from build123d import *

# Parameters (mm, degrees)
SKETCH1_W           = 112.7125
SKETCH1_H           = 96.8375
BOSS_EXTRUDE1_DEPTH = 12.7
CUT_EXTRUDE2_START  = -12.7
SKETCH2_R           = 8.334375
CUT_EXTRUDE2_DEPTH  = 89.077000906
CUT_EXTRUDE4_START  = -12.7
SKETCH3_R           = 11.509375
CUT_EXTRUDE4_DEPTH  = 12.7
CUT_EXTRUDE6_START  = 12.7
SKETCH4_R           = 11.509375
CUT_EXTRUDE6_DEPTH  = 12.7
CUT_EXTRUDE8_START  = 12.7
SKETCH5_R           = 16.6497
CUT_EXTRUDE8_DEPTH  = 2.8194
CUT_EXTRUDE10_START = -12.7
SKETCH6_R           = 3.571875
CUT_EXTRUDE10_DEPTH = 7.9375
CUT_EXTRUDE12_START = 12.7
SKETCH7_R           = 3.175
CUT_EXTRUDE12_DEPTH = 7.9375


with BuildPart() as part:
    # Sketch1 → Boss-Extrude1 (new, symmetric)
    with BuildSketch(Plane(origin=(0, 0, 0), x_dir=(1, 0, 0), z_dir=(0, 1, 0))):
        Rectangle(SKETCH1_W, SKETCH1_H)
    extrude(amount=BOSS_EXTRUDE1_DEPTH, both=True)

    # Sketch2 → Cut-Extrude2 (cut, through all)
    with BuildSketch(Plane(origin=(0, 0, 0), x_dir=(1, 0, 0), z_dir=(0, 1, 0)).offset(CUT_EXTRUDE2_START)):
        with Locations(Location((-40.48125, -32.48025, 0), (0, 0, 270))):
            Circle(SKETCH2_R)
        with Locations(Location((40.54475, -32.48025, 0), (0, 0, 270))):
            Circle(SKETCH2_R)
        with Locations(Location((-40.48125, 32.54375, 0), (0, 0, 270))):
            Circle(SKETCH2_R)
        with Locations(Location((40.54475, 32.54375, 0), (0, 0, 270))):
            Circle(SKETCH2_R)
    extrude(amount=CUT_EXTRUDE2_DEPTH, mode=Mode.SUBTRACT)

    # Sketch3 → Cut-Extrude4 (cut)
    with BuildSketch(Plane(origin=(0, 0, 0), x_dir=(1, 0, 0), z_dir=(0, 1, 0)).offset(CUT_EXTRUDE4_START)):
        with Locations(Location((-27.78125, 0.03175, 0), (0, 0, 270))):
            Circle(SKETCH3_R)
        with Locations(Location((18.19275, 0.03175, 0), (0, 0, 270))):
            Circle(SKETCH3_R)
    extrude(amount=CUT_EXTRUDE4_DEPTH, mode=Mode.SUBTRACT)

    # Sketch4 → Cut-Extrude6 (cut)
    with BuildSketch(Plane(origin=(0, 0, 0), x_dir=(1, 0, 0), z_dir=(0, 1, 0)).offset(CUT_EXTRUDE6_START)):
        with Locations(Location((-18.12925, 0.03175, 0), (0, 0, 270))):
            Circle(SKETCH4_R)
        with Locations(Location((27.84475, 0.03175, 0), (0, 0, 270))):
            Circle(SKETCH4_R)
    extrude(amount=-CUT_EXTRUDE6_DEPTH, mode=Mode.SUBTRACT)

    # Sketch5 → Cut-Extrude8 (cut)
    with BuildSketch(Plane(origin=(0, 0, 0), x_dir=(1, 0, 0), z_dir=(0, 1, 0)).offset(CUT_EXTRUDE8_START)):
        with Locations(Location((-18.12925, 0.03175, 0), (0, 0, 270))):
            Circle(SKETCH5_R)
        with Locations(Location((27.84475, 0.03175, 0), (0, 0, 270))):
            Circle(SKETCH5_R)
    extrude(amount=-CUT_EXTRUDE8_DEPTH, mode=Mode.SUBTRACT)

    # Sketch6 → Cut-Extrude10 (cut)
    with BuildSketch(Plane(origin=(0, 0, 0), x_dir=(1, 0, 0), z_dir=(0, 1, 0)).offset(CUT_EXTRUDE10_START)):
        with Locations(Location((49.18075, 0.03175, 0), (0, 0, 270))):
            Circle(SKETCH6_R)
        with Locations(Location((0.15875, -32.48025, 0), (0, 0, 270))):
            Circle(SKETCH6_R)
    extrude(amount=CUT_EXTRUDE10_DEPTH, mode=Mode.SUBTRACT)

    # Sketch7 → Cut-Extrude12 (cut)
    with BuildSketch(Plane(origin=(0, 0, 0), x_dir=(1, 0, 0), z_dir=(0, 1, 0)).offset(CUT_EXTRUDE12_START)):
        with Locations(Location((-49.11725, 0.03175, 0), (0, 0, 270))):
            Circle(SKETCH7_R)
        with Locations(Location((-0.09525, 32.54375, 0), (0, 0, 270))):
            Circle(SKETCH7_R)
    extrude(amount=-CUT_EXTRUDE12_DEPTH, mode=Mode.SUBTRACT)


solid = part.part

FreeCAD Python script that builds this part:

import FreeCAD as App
import Part
import Sketcher
from FreeCAD import Vector
Q = App.Units.Quantity


def add_polygon(sketch, points):
    """Adds a closed chain of lines whose ends are joined by coincident constraints."""
    first, n = sketch.GeometryCount, len(points)
    for a, b in zip(points, points[1:] + points[:1]):
        sketch.addGeometry(Part.LineSegment(App.Vector(*a, 0), App.Vector(*b, 0)), False)
    for i in range(n):
        sketch.addConstraint(Sketcher.Constraint("Coincident", first + i, 2, first + (i + 1) % n, 1))

doc = App.newDocument("Part")
body = doc.addObject("PartDesign::Body", "Body")

# Sketch on XZ plane
sketch1 = body.newObject("Sketcher::SketchObject", "Sketch")
sketch1.AttachmentSupport = (doc.getObject("XZ_Plane"), [""])
sketch1.MapMode = "FlatFace"
add_polygon(sketch1, [(-56, -48), (-56, 48), (56, 48), (56, -48)])  # lines 0-3
sketch1.addConstraint([
    Sketcher.Constraint("Vertical", 0),
    Sketcher.Constraint("Horizontal", 1),
    Sketcher.Constraint("Vertical", 2),
    Sketcher.Constraint("Horizontal", 3),
    Sketcher.Constraint("Symmetric", 0, 2, 2, 2, -1, 1),
    Sketcher.Constraint("DistanceX", 1, 1, 1, 2, Q("4.4375 in")),
    Sketcher.Constraint("DistanceY", 0, 1, 0, 2, Q("3.8125 in")),
])
pad1 = body.newObject("PartDesign::Pad", "Pad")
pad1.Profile = sketch1
pad1.Length = Q("1 in")
pad1.Midplane = True

# Sketch on XZ plane
sketch2 = body.newObject("Sketcher::SketchObject", "Sketch001")
sketch2.AttachmentSupport = (doc.getObject("XZ_Plane"), [""])
sketch2.MapMode = "FlatFace"
sketch2.AttachmentOffset = App.Placement(Vector(0, 0, 0.5 * 25.4), App.Rotation())
sketch2.addGeometry([
    Part.Circle(Vector(-40, 32, 0), Vector(0, 0, 1), 8),
    Part.Circle(Vector(41, 32, 0), Vector(0, 0, 1), 8),
    Part.Circle(Vector(-40, -33, 0), Vector(0, 0, 1), 8),
    Part.Circle(Vector(41, -33, 0), Vector(0, 0, 1), 8),
], False)
sketch2.addConstraint([
    Sketcher.Constraint("Equal", 0, 1),
    Sketcher.Constraint("Equal", 1, 2),
    Sketcher.Constraint("Equal", 2, 3),
    Sketcher.Constraint("Horizontal", 0, 3, 1, 3),
    Sketcher.Constraint("Horizontal", 2, 3, 3, 3),
    Sketcher.Constraint("Vertical", 0, 3, 2, 3),
    Sketcher.Constraint("Vertical", 1, 3, 3, 3),
    Sketcher.Constraint("Diameter", 0, Q("0.65625 in")),
    Sketcher.Constraint("DistanceX", 0, 3, 1, 3, Q("3.19 in")),
    Sketcher.Constraint("DistanceY", 2, 3, 0, 3, Q("2.56 in")),
    Sketcher.Constraint("DistanceX", 0, 3, -1, 1, Q("1.59375 in")),
    Sketcher.Constraint("DistanceY", 2, 3, -1, 1, Q("1.28125 in")),
])
pocket1 = body.newObject("PartDesign::Pocket", "Pocket")
pocket1.Profile = sketch2
pocket1.Type = "ThroughAll"

# Sketch on XZ plane
sketch3 = body.newObject("Sketcher::SketchObject", "Sketch002")
sketch3.AttachmentSupport = (doc.getObject("XZ_Plane"), [""])
sketch3.MapMode = "FlatFace"
sketch3.AttachmentOffset = App.Placement(Vector(0, 0, 0.5 * 25.4), App.Rotation())
sketch3.addGeometry([
    Part.Circle(Vector(-28, 0, 0), Vector(0, 0, 1), 12),
    Part.Circle(Vector(18, 0, 0), Vector(0, 0, 1), 12),
], False)
sketch3.addConstraint([
    Sketcher.Constraint("Equal", 0, 1),
    Sketcher.Constraint("Horizontal", 0, 3, 1, 3),
    Sketcher.Constraint("Diameter", 0, Q("0.90625 in")),
    Sketcher.Constraint("DistanceX", 0, 3, 1, 3, Q("1.81 in")),
    Sketcher.Constraint("DistanceX", 0, 3, -1, 1, Q("1.09375 in")),
    Sketcher.Constraint("DistanceY", 0, 3, -1, 1, 0.03175),
])
pocket2 = body.newObject("PartDesign::Pocket", "Pocket001")
pocket2.Profile = sketch3
pocket2.Length = Q("0.5 in")

# Sketch on XZ plane
sketch4 = body.newObject("Sketcher::SketchObject", "Sketch003")
sketch4.AttachmentSupport = (doc.getObject("XZ_Plane"), [""])
sketch4.MapMode = "FlatFace"
sketch4.AttachmentOffset = App.Placement(Vector(0, 0, -0.5 * 25.4), App.Rotation())
sketch4.addGeometry([
    Part.Circle(Vector(-18, 0, 0), Vector(0, 0, 1), 12),
    Part.Circle(Vector(28, 0, 0), Vector(0, 0, 1), 12),
], False)
sketch4.addConstraint([
    Sketcher.Constraint("Equal", 0, 1),
    Sketcher.Constraint("Horizontal", 0, 3, 1, 3),
    Sketcher.Constraint("Diameter", 0, Q("0.90625 in")),
    Sketcher.Constraint("DistanceX", 0, 3, 1, 3, Q("1.81 in")),
    Sketcher.Constraint("DistanceX", 0, 3, -1, 1, 18.12925),
    Sketcher.Constraint("DistanceY", 0, 3, -1, 1, 0.03175),
])
pocket3 = body.newObject("PartDesign::Pocket", "Pocket002")
pocket3.Profile = sketch4
pocket3.Length = Q("0.5 in")
pocket3.Reversed = True

# Sketch on XZ plane
sketch5 = body.newObject("Sketcher::SketchObject", "Sketch004")
sketch5.AttachmentSupport = (doc.getObject("XZ_Plane"), [""])
sketch5.MapMode = "FlatFace"
sketch5.AttachmentOffset = App.Placement(Vector(0, 0, -0.5 * 25.4), App.Rotation())
sketch5.addGeometry([
    Part.Circle(Vector(-18, 0, 0), Vector(0, 0, 1), 17),
    Part.Circle(Vector(28, 0, 0), Vector(0, 0, 1), 17),
], False)
sketch5.addConstraint([
    Sketcher.Constraint("Equal", 0, 1),
    Sketcher.Constraint("Horizontal", 0, 3, 1, 3),
    Sketcher.Constraint("Diameter", 0, Q("1.311 in")),
    Sketcher.Constraint("DistanceX", 0, 3, 1, 3, Q("1.81 in")),
    Sketcher.Constraint("DistanceX", 0, 3, -1, 1, 18.12925),
    Sketcher.Constraint("DistanceY", 0, 3, -1, 1, 0.03175),
])
pocket4 = body.newObject("PartDesign::Pocket", "Pocket003")
pocket4.Profile = sketch5
pocket4.Length = Q("0.111 in")
pocket4.Reversed = True

# Sketch on XZ plane
sketch6 = body.newObject("Sketcher::SketchObject", "Sketch005")
sketch6.AttachmentSupport = (doc.getObject("XZ_Plane"), [""])
sketch6.MapMode = "FlatFace"
sketch6.AttachmentOffset = App.Placement(Vector(0, 0, 0.5 * 25.4), App.Rotation())
sketch6.addGeometry([
    Part.Circle(Vector(49.2, 0, 0), Vector(0, 0, 1), 3.6),
    Part.Circle(Vector(0.2, 32.5, 0), Vector(0, 0, 1), 3.6),
], False)
sketch6.addConstraint([
    Sketcher.Constraint("Equal", 0, 1),
    Sketcher.Constraint("Diameter", 0, Q("0.28125 in")),
    Sketcher.Constraint("DistanceX", 1, 3, 0, 3, Q("1.93 in")),
    Sketcher.Constraint("DistanceY", 0, 3, 1, 3, Q("1.28 in")),
    Sketcher.Constraint("DistanceX", -1, 1, 0, 3, 49.18075),
    Sketcher.Constraint("DistanceY", 0, 3, -1, 1, 0.03175),
])
pocket5 = body.newObject("PartDesign::Pocket", "Pocket004")
pocket5.Profile = sketch6
pocket5.Length = Q("0.3125 in")

# Sketch on XZ plane
sketch7 = body.newObject("Sketcher::SketchObject", "Sketch006")
sketch7.AttachmentSupport = (doc.getObject("XZ_Plane"), [""])
sketch7.MapMode = "FlatFace"
sketch7.AttachmentOffset = App.Placement(Vector(0, 0, -0.5 * 25.4), App.Rotation())
sketch7.addGeometry([
    Part.Circle(Vector(-49.1, 0, 0), Vector(0, 0, 1), 3.2),
    Part.Circle(Vector(-0.1, -32.5, 0), Vector(0, 0, 1), 3.2),
], False)
sketch7.addConstraint([
    Sketcher.Constraint("Equal", 0, 1),
    Sketcher.Constraint("Diameter", 0, Q("0.25 in")),
    Sketcher.Constraint("DistanceX", 0, 3, 1, 3, Q("1.93 in")),
    Sketcher.Constraint("DistanceY", 1, 3, 0, 3, Q("1.28 in")),
    Sketcher.Constraint("DistanceY", 1, 3, -1, 1, Q("1.28125 in")),
    Sketcher.Constraint("DistanceX", 0, 3, -1, 1, 49.11725),
])
pocket6 = body.newObject("PartDesign::Pocket", "Pocket005")
pocket6.Profile = sketch7
pocket6.Length = Q("0.3125 in")
pocket6.Reversed = True

doc.recompute()
